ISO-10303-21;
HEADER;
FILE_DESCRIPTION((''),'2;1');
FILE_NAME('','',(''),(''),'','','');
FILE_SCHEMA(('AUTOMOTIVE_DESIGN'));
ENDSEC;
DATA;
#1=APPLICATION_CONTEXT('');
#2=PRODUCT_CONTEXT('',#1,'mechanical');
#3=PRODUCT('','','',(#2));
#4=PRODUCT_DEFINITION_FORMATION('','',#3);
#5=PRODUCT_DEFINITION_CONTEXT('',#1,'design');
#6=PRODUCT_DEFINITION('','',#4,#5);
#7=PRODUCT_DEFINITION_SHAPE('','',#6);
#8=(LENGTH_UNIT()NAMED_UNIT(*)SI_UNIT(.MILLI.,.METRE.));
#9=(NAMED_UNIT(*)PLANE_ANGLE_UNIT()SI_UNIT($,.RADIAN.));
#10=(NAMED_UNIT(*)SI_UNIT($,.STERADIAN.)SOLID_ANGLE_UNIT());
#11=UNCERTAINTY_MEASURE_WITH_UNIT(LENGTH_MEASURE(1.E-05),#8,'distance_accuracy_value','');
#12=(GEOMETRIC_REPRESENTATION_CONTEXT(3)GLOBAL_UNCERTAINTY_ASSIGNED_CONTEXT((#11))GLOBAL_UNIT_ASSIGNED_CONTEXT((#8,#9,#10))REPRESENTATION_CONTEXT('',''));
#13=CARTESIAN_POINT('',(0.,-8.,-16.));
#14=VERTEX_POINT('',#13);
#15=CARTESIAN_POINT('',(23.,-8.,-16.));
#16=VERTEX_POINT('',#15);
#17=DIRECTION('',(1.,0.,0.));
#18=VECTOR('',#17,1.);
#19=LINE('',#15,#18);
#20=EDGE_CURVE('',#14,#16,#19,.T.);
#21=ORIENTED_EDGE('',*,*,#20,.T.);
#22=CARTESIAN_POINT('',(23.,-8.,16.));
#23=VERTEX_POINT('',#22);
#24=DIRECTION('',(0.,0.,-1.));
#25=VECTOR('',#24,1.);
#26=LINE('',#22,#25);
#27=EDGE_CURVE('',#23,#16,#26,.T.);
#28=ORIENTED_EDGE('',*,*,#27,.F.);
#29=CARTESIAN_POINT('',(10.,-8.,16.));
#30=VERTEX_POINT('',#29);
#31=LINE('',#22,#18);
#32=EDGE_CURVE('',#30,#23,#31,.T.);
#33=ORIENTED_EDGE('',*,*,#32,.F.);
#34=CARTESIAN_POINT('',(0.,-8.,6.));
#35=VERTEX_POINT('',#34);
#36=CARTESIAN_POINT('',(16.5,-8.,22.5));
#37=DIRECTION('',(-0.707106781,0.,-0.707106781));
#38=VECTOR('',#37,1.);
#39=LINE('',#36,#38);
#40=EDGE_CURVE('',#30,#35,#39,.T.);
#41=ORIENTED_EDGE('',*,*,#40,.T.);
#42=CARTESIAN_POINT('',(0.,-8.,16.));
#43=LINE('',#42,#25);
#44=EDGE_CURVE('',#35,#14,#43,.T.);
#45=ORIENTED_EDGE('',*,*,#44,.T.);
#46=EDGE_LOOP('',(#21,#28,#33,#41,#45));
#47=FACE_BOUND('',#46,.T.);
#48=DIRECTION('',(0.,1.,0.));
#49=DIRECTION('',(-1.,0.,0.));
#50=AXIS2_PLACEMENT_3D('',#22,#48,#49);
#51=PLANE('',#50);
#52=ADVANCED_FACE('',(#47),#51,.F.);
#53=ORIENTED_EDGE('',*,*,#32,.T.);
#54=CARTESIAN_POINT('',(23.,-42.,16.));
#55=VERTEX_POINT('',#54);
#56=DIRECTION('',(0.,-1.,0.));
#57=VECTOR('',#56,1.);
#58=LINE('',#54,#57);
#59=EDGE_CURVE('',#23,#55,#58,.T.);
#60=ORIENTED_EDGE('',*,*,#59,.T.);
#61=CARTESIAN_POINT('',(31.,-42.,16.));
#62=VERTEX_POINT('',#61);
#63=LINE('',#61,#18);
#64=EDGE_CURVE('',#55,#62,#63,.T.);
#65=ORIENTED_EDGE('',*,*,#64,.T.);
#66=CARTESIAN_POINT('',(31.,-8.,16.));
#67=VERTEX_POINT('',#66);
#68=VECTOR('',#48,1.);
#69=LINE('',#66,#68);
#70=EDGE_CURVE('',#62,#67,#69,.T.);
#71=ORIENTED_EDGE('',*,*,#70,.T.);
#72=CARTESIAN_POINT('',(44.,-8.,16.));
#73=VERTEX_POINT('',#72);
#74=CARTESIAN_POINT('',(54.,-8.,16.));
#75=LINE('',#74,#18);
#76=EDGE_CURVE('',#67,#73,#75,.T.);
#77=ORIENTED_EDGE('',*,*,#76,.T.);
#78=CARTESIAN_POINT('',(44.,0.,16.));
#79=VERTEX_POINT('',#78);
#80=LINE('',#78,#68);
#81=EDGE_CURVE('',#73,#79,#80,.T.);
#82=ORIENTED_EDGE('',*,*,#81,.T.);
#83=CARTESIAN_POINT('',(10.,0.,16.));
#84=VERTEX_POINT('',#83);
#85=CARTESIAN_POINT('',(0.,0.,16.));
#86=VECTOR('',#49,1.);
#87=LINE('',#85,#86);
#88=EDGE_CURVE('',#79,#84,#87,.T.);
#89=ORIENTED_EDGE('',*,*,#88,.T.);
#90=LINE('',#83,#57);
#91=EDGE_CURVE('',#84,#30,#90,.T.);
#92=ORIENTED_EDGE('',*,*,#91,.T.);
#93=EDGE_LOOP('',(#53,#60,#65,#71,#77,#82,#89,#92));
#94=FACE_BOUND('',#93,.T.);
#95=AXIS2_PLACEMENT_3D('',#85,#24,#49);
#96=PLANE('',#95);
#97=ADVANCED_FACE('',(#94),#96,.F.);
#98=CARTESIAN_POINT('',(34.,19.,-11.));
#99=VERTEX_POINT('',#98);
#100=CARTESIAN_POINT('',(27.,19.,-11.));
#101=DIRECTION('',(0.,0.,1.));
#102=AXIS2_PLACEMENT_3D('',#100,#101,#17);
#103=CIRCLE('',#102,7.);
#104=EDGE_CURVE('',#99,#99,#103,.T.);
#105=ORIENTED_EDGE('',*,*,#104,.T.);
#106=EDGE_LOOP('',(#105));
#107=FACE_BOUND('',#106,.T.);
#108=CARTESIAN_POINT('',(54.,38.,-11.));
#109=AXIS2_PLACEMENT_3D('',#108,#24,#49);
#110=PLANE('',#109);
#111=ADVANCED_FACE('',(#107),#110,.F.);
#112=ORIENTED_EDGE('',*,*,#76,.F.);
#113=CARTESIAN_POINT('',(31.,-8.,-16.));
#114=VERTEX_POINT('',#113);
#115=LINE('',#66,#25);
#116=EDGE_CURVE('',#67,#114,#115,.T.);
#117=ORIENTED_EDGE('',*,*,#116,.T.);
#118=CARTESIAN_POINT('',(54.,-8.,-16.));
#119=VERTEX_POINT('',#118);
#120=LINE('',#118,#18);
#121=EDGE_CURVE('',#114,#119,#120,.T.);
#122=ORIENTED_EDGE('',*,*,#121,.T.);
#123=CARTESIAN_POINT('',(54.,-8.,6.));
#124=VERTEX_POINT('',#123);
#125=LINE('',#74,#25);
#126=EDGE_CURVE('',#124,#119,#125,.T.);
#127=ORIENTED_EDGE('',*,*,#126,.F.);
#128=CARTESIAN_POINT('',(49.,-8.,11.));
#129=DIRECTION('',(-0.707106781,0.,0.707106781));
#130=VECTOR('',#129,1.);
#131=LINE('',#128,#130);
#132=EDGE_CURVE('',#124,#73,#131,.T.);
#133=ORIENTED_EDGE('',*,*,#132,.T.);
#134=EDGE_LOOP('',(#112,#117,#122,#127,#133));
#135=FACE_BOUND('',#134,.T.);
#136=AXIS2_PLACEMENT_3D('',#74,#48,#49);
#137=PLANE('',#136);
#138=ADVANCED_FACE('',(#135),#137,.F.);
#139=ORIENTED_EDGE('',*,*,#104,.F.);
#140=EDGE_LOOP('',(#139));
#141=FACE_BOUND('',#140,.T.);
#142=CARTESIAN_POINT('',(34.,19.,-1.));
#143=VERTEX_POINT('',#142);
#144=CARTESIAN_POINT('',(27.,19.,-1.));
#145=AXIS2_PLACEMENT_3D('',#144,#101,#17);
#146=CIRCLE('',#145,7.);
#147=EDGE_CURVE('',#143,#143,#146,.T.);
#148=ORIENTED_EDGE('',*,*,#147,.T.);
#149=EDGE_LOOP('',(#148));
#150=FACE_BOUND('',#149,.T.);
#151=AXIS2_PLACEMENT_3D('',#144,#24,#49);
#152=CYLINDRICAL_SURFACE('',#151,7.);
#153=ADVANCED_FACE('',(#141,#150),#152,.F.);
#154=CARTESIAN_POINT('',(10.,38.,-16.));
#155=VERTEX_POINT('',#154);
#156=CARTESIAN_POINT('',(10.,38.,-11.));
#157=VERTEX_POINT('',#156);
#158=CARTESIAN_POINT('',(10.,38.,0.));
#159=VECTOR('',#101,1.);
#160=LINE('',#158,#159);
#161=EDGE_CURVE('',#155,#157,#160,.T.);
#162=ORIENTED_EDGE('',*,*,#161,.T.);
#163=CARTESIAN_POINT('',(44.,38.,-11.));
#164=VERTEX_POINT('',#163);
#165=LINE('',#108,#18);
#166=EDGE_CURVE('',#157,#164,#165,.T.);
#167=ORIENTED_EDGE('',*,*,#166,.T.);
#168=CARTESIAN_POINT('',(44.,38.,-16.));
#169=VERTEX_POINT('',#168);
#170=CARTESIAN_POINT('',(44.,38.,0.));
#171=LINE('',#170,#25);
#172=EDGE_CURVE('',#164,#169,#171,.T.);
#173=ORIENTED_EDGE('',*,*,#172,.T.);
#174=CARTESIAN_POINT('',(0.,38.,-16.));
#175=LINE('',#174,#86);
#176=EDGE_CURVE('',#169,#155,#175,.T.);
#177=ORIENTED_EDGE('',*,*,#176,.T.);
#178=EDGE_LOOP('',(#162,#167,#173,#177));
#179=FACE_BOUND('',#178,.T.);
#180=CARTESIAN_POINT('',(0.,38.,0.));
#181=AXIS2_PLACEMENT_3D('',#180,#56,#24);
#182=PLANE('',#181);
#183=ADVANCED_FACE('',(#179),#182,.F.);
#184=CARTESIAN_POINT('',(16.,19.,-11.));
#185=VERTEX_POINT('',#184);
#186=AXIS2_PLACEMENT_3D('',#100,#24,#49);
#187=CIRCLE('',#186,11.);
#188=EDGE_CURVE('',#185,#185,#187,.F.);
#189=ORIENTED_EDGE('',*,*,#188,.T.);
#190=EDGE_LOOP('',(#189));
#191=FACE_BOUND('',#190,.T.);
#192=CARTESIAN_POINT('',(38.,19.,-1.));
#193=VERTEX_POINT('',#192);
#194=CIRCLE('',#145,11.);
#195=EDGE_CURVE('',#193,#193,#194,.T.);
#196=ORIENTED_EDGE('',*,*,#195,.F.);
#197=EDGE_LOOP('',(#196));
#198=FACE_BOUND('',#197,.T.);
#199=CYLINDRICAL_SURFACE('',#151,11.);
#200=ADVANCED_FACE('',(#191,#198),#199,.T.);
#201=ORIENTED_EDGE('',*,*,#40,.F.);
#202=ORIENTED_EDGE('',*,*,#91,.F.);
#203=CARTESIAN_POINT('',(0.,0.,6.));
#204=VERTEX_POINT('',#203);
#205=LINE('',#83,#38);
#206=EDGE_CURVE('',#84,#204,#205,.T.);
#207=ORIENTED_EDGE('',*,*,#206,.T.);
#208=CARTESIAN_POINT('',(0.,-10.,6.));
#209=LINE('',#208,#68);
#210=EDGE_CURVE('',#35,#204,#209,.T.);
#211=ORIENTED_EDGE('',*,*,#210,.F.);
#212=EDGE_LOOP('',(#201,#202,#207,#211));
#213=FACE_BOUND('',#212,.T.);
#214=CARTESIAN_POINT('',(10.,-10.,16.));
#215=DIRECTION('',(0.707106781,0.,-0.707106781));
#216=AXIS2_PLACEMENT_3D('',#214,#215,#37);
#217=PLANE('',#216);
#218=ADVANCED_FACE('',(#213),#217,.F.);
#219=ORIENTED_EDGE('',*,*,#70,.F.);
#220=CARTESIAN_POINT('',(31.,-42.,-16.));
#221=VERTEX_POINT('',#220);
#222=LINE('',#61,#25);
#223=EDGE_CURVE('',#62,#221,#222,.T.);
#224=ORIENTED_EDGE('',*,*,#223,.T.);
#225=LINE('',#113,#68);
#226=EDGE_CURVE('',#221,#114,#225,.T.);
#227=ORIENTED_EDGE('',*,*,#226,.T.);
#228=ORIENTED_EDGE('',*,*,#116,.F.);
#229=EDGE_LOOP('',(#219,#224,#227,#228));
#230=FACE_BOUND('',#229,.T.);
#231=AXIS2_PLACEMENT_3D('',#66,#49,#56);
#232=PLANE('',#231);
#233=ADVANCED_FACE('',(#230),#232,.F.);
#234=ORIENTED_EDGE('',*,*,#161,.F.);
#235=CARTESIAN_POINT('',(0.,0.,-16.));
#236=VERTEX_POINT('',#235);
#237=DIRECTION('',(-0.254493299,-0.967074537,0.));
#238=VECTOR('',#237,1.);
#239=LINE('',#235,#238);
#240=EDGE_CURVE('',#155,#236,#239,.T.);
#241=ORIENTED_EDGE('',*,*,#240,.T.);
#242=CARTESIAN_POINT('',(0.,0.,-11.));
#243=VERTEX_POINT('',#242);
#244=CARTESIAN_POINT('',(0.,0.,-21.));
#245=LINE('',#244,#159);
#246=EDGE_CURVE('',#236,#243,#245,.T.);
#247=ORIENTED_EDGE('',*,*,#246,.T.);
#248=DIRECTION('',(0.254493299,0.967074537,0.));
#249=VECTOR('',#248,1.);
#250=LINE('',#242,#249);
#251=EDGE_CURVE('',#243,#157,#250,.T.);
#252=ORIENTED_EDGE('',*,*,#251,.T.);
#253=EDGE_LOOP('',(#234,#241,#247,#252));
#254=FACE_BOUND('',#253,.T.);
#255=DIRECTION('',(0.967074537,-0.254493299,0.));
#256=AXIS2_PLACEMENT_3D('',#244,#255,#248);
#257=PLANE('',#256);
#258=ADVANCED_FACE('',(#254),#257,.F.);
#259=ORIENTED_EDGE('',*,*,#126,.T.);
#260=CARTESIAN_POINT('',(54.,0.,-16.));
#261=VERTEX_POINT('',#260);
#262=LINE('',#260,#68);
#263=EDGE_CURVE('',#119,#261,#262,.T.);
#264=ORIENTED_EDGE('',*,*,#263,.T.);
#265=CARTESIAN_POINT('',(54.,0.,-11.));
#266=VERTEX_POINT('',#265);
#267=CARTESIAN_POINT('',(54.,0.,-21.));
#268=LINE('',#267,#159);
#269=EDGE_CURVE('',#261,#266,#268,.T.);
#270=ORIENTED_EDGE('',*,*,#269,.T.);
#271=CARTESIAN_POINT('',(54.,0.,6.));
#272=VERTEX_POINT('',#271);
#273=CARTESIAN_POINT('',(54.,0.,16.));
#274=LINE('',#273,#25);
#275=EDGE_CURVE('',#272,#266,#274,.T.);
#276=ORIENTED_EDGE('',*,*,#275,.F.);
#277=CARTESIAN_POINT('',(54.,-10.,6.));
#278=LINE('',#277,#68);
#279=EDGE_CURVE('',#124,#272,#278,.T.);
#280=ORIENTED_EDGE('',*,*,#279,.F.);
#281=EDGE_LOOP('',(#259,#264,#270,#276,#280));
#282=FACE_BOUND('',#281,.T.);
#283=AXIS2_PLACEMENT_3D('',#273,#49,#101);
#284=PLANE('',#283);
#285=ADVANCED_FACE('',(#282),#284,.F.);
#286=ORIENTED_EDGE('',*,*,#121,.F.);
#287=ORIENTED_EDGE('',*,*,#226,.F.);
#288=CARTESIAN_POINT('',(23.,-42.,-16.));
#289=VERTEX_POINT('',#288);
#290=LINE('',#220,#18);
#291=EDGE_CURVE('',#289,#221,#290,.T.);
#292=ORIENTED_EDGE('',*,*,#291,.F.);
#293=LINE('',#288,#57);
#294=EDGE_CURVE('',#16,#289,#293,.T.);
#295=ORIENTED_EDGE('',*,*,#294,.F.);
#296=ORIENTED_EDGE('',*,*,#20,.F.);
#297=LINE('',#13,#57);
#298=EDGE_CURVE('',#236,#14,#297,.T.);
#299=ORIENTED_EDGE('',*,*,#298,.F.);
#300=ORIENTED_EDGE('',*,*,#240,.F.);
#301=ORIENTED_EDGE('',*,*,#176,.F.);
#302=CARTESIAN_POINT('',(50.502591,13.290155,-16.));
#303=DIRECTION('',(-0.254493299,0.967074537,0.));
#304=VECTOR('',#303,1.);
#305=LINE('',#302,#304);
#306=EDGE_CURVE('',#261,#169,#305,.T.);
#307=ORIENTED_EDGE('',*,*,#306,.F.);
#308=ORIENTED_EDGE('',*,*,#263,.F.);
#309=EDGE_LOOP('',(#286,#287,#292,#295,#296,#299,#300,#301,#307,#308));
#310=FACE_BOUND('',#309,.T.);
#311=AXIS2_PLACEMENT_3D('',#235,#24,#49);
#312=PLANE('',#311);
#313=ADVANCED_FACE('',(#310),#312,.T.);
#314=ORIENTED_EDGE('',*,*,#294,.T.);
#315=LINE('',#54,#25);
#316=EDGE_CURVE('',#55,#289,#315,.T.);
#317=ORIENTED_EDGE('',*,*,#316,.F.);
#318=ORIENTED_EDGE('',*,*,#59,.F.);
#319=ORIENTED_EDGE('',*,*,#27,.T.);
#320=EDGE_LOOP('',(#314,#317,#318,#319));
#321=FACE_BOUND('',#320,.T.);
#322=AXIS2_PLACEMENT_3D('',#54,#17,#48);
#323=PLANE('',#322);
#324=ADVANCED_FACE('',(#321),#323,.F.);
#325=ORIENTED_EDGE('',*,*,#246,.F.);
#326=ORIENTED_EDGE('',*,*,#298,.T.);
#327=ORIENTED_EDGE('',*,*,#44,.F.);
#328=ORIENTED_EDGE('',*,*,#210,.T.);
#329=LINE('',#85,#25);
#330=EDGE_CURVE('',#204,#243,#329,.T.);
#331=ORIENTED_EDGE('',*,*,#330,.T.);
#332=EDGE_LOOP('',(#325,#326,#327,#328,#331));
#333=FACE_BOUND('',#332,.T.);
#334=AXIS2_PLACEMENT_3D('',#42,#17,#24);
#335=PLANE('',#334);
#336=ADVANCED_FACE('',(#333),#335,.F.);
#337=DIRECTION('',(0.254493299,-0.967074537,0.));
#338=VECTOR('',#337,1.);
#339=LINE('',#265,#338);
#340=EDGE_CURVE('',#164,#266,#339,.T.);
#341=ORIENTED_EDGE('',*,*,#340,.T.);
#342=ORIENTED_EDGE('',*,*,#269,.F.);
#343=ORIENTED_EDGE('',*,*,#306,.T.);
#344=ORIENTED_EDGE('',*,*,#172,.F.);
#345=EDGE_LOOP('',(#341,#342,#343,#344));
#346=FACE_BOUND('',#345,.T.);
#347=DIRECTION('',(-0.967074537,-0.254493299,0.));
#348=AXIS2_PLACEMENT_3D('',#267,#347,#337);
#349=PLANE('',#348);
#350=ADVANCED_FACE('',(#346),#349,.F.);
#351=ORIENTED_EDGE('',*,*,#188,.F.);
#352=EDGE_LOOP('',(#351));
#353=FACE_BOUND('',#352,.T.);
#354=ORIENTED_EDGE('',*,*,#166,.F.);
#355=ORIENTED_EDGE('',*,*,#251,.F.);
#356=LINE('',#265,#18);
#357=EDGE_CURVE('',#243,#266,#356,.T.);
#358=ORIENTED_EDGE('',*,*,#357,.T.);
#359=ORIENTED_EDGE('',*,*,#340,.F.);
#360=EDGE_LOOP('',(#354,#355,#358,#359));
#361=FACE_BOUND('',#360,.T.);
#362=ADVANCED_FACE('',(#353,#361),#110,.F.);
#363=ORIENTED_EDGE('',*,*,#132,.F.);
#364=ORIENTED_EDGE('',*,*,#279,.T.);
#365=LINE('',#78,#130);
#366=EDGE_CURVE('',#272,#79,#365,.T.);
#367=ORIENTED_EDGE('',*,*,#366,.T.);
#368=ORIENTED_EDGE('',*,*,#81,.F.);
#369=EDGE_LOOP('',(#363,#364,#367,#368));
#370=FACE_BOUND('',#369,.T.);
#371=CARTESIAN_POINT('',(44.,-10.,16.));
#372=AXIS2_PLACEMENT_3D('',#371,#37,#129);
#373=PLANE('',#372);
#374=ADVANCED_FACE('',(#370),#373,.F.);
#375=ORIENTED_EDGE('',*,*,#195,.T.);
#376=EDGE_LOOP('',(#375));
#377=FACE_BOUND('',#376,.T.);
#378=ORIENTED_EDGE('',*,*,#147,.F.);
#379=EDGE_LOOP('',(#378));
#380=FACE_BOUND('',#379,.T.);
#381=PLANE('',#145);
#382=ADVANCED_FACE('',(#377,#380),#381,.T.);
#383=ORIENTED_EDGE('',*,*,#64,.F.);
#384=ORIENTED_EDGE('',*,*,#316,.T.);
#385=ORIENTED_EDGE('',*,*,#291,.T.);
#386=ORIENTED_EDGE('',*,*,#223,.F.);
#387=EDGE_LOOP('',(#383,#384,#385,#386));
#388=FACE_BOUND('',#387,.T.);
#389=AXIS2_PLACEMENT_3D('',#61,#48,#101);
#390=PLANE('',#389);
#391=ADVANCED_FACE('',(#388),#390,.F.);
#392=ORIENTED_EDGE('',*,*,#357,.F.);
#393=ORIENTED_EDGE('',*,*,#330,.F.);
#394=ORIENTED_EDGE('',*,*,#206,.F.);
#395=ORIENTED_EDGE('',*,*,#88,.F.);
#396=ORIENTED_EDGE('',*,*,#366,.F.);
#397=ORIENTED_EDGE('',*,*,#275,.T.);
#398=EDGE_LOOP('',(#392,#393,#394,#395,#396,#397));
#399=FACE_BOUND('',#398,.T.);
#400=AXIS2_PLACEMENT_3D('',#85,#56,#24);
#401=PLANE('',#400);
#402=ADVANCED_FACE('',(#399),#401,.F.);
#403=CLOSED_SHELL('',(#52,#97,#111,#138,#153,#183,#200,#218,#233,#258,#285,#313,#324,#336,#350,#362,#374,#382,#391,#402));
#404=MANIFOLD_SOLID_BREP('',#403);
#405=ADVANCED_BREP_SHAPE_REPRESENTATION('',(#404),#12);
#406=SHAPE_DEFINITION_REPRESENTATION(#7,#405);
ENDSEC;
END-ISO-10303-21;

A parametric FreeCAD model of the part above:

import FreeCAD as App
import Part
import Sketcher

V = App.Vector
Q = App.Units.Quantity

doc = App.newDocument("Part")
params = doc.addObject("Spreadsheet::Sheet", "Params")
for row, (alias, value) in enumerate([
    ("sketch1_width", "54 mm"),
    ("sketch1_width2", "23 mm"),
    ("sketch1_height", "34 mm"),
    ("pad1_length", "32 mm"),
    ("sketch2_width", "54 mm"),
    ("sketch2_height", "5 mm"),
    ("pad2_length", "38 mm"),
    ("sketch3_width", "10 mm"),
    ("pocket1_length", "10 mm"),
    ("sketch4_diameter", "22 mm"),
    ("sketch4_diameter2", "14 mm"),
    ("pad3_length", "10 mm"),
    ("sketch5_width", "10 mm"),
    ("sketch5_height", "38 mm"),
    ("pocket2_length", "10 mm"),
], start=1):
    params.set(f"A{row}", alias)
    params.set(f"B{row}", "=" + value)
    params.setAlias(f"B{row}", alias)

body = doc.addObject("PartDesign::Body", "Body")

sketch1 = body.newObject("Sketcher::SketchObject", "Sketch")
sketch1.AttachmentSupport = (doc.getObject("XY_Plane"), [""])
sketch1.MapMode = "FlatFace"
sketch1.addGeometry([
    Part.LineSegment(V(54, 0, 0), V(0, 0, 0)),
    Part.LineSegment(V(0, 0, 0), V(0, -8, 0)),
    Part.LineSegment(V(0, -8, 0), V(23, -8, 0)),
    Part.LineSegment(V(23, -8, 0), V(23, -42, 0)),
    Part.LineSegment(V(23, -42, 0), V(31, -42, 0)),
    Part.LineSegment(V(31, -42, 0), V(31, -8, 0)),
    Part.LineSegment(V(31, -8, 0), V(54, -8, 0)),
    Part.LineSegment(V(54, -8, 0), V(54, 0, 0)),
], False)
sketch1.addConstraint([
    Sketcher.Constraint("Coincident", 0, 2, 1, 1),
    Sketcher.Constraint("Coincident", 1, 2, 2, 1),
    Sketcher.Constraint("Coincident", 2, 2, 3, 1),
    Sketcher.Constraint("Coincident", 3, 2, 4, 1),
    Sketcher.Constraint("Coincident", 4, 2, 5, 1),
    Sketcher.Constraint("Coincident", 5, 2, 6, 1),
    Sketcher.Constraint("Coincident", 6, 2, 7, 1),
    Sketcher.Constraint("Coincident", 7, 2, 0, 1),
    Sketcher.Constraint("Horizontal", 0),
    Sketcher.Constraint("Vertical", 1),
    Sketcher.Constraint("Horizontal", 2),
    Sketcher.Constraint("Vertical", 3),
    Sketcher.Constraint("Horizontal", 4),
    Sketcher.Constraint("Vertical", 5),
    Sketcher.Constraint("Horizontal", 6),
    Sketcher.Constraint("Vertical", 7),
    Sketcher.Constraint("Coincident", 0, 2, -1, 1),
    Sketcher.Constraint("Horizontal", 2, 2, 5, 2),
    Sketcher.Constraint("Equal", 2, 6),
    Sketcher.Constraint("Equal", 4, 1),
    Sketcher.Constraint("DistanceX", 0, 2, 0, 1, Q("54 mm")),
    Sketcher.Constraint("DistanceX", 2, 1, 2, 2, Q("23 mm")),
    Sketcher.Constraint("DistanceY", 3, 2, 3, 1, Q("34 mm")),
])
sketch1.setExpression("Constraints[20]", "Params.sketch1_width")
sketch1.setExpression("Constraints[21]", "Params.sketch1_width2")
sketch1.setExpression("Constraints[22]", "Params.sketch1_height")
pad1 = body.newObject("PartDesign::Pad", "Pad")
pad1.Profile = sketch1
pad1.setExpression("Length", "Params.pad1_length")
pad1.Midplane = True

sketch2 = body.newObject("Sketcher::SketchObject", "Sketch001")
sketch2.AttachmentSupport = (doc.getObject("XZ_Plane"), [""])
sketch2.MapMode = "FlatFace"
sketch2.addGeometry([
    Part.LineSegment(V(0, -16, 0), V(0, -11, 0)),
    Part.LineSegment(V(0, -11, 0), V(54, -11, 0)),
    Part.LineSegment(V(54, -11, 0), V(54, -16, 0)),
    Part.LineSegment(V(54, -16, 0), V(0, -16, 0)),
], False)
sketch2.addConstraint([
    Sketcher.Constraint("Coincident", 0, 2, 1, 1),
    Sketcher.Constraint("Coincident", 1, 2, 2, 1),
    Sketcher.Constraint("Coincident", 2, 2, 3, 1),
    Sketcher.Constraint("Coincident", 3, 2, 0, 1),
    Sketcher.Constraint("Vertical", 0),
    Sketcher.Constraint("Horizontal", 1),
    Sketcher.Constraint("Vertical", 2),
    Sketcher.Constraint("Horizontal", 3),
    Sketcher.Constraint("PointOnObject", 0, 2, -2),
    Sketcher.Constraint("DistanceX", 1, 1, 1, 2, Q("54 mm")),
    Sketcher.Constraint("DistanceY", 0, 1, 0, 2, Q("5 mm")),
    Sketcher.Constraint("DistanceY", 0, 2, -1, 1, Q("11 mm")),
])
sketch2.setExpression("Constraints[9]", "Params.sketch2_width")
sketch2.setExpression("Constraints[10]", "Params.sketch2_height")
pad2 = body.newObject("PartDesign::Pad", "Pad001")
pad2.Profile = sketch2
pad2.setExpression("Length", "Params.pad2_length")
pad2.Reversed = True

sketch3 = body.newObject("Sketcher::SketchObject", "Sketch002")
sketch3.AttachmentSupport = (doc.getObject("XZ_Plane"), [""])
sketch3.MapMode = "FlatFace"
sketch3.addGeometry([
    Part.LineSegment(V(54, 6, 0), V(44, 16, 0)),
    Part.LineSegment(V(44, 16, 0), V(54, 16, 0)),
    Part.LineSegment(V(54, 16, 0), V(54, 6, 0)),
    Part.LineSegment(V(10, 16, 0), V(0, 6, 0)),
    Part.LineSegment(V(0, 6, 0), V(0, 16, 0)),
    Part.LineSegment(V(0, 16, 0), V(10, 16, 0)),
], False)
sketch3.addConstraint([
    Sketcher.Constraint("Coincident", 0, 2, 1, 1),
    Sketcher.Constraint("Coincident", 1, 2, 2, 1),
    Sketcher.Constraint("Coincident", 2, 2, 0, 1),
    Sketcher.Constraint("Coincident", 3, 2, 4, 1),
    Sketcher.Constraint("Coincident", 4, 2, 5, 1),
    Sketcher.Constraint("Coincident", 5, 2, 3, 1),
    Sketcher.Constraint("Horizontal", 1),
    Sketcher.Constraint("Vertical", 2),
    Sketcher.Constraint("Vertical", 4),
    Sketcher.Constraint("Horizontal", 5),
    Sketcher.Constraint("PointOnObject", 3, 2, -2),
    Sketcher.Constraint("Perpendicular", 0, 3),
    Sketcher.Constraint("Horizontal", 2, 2, 3, 2),
    Sketcher.Constraint("Horizontal", 1, 2, 4, 2),
    Sketcher.Constraint("Equal", 1, 5),
    Sketcher.Constraint("DistanceX", 1, 1, 1, 2, Q("10 mm")),
    Sketcher.Constraint("DistanceX", -1, 1, 0, 2, Q("44 mm")),
    Sketcher.Constraint("DistanceY", -1, 1, 0, 2, Q("16 mm")),
])
sketch3.setExpression("Constraints[15]", "Params.sketch3_width")
pocket1 = body.newObject("PartDesign::Pocket", "Pocket")
pocket1.Profile = sketch3
pocket1.setExpression("Length", "Params.pocket1_length")
pocket1.Reversed = True

sketch4 = body.newObject("Sketcher::SketchObject", "Sketch003")
sketch4.AttachmentSupport = (doc.getObject("XY_Plane"), [""])
sketch4.MapMode = "FlatFace"
sketch4.AttachmentOffset = App.Placement(V(0, 0, -11), App.Rotation())
sketch4.addGeometry([
    Part.Circle(V(27, 19, 0), V(0, 0, 1), 11),
    Part.Circle(V(27, 19, 0), V(0, 0, 1), 7),
], False)
sketch4.addConstraint([
    Sketcher.Constraint("Coincident", 1, 3, 0, 3),
    Sketcher.Constraint("Diameter", 0, Q("22 mm")),
    Sketcher.Constraint("Diameter", 1, Q("14 mm")),
    Sketcher.Constraint("DistanceX", -1, 1, 0, 3, Q("27 mm")),
    Sketcher.Constraint("DistanceY", -1, 1, 0, 3, Q("19 mm")),
])
sketch4.setExpression("Constraints[1]", "Params.sketch4_diameter")
sketch4.setExpression("Constraints[2]", "Params.sketch4_diameter2")
pad3 = body.newObject("PartDesign::Pad", "Pad002")
pad3.Profile = sketch4
pad3.setExpression("Length", "Params.pad3_length")

sketch5 = body.newObject("Sketcher::SketchObject", "Sketch004")
sketch5.AttachmentSupport = (doc.getObject("XY_Plane"), [""])
sketch5.MapMode = "FlatFace"
sketch5.AttachmentOffset = App.Placement(V(0, 0, -11), App.Rotation())
sketch5.addGeometry([
    Part.LineSegment(V(0, 0, 0), V(10, 38, 0)),
    Part.LineSegment(V(10, 38, 0), V(0, 38, 0)),
    Part.LineSegment(V(0, 38, 0), V(0, 0, 0)),
    Part.LineSegment(V(54, 38, 0), V(44, 38, 0)),
    Part.LineSegment(V(44, 38, 0), V(54, 0, 0)),
    Part.LineSegment(V(54, 0, 0), V(54, 38, 0)),
], False)
sketch5.addConstraint([
    Sketcher.Constraint("Coincident", 0, 2, 1, 1),
    Sketcher.Constraint("Coincident", 1, 2, 2, 1),
    Sketcher.Constraint("Coincident", 2, 2, 0, 1),
    Sketcher.Constraint("Coincident", 3, 2, 4, 1),
    Sketcher.Constraint("Coincident", 4, 2, 5, 1),
    Sketcher.Constraint("Coincident", 5, 2, 3, 1),
    Sketcher.Constraint("Horizontal", 1),
    Sketcher.Constraint("Vertical", 2),
    Sketcher.Constraint("Horizontal", 3),
    Sketcher.Constraint("Vertical", 5),
    Sketcher.Constraint("Coincident", 2, 2, -1, 1),
    Sketcher.Constraint("PointOnObject", 4, 2, -1),
    Sketcher.Constraint("Horizontal", 1, 2, 3, 2),
    Sketcher.Constraint("Equal", 1, 3),
    Sketcher.Constraint("DistanceX", 1, 2, 1, 1, Q("10 mm")),
    Sketcher.Constraint("DistanceY", 2, 2, 2, 1, Q("38 mm")),
    Sketcher.Constraint("DistanceX", -1, 1, 3, 2, Q("44 mm")),
])
sketch5.setExpression("Constraints[14]", "Params.sketch5_width")
sketch5.setExpression("Constraints[15]", "Params.sketch5_height")
pocket2 = body.newObject("PartDesign::Pocket", "Pocket001")
pocket2.Profile = sketch5
pocket2.setExpression("Length", "Params.pocket2_length")

doc.recompute()
